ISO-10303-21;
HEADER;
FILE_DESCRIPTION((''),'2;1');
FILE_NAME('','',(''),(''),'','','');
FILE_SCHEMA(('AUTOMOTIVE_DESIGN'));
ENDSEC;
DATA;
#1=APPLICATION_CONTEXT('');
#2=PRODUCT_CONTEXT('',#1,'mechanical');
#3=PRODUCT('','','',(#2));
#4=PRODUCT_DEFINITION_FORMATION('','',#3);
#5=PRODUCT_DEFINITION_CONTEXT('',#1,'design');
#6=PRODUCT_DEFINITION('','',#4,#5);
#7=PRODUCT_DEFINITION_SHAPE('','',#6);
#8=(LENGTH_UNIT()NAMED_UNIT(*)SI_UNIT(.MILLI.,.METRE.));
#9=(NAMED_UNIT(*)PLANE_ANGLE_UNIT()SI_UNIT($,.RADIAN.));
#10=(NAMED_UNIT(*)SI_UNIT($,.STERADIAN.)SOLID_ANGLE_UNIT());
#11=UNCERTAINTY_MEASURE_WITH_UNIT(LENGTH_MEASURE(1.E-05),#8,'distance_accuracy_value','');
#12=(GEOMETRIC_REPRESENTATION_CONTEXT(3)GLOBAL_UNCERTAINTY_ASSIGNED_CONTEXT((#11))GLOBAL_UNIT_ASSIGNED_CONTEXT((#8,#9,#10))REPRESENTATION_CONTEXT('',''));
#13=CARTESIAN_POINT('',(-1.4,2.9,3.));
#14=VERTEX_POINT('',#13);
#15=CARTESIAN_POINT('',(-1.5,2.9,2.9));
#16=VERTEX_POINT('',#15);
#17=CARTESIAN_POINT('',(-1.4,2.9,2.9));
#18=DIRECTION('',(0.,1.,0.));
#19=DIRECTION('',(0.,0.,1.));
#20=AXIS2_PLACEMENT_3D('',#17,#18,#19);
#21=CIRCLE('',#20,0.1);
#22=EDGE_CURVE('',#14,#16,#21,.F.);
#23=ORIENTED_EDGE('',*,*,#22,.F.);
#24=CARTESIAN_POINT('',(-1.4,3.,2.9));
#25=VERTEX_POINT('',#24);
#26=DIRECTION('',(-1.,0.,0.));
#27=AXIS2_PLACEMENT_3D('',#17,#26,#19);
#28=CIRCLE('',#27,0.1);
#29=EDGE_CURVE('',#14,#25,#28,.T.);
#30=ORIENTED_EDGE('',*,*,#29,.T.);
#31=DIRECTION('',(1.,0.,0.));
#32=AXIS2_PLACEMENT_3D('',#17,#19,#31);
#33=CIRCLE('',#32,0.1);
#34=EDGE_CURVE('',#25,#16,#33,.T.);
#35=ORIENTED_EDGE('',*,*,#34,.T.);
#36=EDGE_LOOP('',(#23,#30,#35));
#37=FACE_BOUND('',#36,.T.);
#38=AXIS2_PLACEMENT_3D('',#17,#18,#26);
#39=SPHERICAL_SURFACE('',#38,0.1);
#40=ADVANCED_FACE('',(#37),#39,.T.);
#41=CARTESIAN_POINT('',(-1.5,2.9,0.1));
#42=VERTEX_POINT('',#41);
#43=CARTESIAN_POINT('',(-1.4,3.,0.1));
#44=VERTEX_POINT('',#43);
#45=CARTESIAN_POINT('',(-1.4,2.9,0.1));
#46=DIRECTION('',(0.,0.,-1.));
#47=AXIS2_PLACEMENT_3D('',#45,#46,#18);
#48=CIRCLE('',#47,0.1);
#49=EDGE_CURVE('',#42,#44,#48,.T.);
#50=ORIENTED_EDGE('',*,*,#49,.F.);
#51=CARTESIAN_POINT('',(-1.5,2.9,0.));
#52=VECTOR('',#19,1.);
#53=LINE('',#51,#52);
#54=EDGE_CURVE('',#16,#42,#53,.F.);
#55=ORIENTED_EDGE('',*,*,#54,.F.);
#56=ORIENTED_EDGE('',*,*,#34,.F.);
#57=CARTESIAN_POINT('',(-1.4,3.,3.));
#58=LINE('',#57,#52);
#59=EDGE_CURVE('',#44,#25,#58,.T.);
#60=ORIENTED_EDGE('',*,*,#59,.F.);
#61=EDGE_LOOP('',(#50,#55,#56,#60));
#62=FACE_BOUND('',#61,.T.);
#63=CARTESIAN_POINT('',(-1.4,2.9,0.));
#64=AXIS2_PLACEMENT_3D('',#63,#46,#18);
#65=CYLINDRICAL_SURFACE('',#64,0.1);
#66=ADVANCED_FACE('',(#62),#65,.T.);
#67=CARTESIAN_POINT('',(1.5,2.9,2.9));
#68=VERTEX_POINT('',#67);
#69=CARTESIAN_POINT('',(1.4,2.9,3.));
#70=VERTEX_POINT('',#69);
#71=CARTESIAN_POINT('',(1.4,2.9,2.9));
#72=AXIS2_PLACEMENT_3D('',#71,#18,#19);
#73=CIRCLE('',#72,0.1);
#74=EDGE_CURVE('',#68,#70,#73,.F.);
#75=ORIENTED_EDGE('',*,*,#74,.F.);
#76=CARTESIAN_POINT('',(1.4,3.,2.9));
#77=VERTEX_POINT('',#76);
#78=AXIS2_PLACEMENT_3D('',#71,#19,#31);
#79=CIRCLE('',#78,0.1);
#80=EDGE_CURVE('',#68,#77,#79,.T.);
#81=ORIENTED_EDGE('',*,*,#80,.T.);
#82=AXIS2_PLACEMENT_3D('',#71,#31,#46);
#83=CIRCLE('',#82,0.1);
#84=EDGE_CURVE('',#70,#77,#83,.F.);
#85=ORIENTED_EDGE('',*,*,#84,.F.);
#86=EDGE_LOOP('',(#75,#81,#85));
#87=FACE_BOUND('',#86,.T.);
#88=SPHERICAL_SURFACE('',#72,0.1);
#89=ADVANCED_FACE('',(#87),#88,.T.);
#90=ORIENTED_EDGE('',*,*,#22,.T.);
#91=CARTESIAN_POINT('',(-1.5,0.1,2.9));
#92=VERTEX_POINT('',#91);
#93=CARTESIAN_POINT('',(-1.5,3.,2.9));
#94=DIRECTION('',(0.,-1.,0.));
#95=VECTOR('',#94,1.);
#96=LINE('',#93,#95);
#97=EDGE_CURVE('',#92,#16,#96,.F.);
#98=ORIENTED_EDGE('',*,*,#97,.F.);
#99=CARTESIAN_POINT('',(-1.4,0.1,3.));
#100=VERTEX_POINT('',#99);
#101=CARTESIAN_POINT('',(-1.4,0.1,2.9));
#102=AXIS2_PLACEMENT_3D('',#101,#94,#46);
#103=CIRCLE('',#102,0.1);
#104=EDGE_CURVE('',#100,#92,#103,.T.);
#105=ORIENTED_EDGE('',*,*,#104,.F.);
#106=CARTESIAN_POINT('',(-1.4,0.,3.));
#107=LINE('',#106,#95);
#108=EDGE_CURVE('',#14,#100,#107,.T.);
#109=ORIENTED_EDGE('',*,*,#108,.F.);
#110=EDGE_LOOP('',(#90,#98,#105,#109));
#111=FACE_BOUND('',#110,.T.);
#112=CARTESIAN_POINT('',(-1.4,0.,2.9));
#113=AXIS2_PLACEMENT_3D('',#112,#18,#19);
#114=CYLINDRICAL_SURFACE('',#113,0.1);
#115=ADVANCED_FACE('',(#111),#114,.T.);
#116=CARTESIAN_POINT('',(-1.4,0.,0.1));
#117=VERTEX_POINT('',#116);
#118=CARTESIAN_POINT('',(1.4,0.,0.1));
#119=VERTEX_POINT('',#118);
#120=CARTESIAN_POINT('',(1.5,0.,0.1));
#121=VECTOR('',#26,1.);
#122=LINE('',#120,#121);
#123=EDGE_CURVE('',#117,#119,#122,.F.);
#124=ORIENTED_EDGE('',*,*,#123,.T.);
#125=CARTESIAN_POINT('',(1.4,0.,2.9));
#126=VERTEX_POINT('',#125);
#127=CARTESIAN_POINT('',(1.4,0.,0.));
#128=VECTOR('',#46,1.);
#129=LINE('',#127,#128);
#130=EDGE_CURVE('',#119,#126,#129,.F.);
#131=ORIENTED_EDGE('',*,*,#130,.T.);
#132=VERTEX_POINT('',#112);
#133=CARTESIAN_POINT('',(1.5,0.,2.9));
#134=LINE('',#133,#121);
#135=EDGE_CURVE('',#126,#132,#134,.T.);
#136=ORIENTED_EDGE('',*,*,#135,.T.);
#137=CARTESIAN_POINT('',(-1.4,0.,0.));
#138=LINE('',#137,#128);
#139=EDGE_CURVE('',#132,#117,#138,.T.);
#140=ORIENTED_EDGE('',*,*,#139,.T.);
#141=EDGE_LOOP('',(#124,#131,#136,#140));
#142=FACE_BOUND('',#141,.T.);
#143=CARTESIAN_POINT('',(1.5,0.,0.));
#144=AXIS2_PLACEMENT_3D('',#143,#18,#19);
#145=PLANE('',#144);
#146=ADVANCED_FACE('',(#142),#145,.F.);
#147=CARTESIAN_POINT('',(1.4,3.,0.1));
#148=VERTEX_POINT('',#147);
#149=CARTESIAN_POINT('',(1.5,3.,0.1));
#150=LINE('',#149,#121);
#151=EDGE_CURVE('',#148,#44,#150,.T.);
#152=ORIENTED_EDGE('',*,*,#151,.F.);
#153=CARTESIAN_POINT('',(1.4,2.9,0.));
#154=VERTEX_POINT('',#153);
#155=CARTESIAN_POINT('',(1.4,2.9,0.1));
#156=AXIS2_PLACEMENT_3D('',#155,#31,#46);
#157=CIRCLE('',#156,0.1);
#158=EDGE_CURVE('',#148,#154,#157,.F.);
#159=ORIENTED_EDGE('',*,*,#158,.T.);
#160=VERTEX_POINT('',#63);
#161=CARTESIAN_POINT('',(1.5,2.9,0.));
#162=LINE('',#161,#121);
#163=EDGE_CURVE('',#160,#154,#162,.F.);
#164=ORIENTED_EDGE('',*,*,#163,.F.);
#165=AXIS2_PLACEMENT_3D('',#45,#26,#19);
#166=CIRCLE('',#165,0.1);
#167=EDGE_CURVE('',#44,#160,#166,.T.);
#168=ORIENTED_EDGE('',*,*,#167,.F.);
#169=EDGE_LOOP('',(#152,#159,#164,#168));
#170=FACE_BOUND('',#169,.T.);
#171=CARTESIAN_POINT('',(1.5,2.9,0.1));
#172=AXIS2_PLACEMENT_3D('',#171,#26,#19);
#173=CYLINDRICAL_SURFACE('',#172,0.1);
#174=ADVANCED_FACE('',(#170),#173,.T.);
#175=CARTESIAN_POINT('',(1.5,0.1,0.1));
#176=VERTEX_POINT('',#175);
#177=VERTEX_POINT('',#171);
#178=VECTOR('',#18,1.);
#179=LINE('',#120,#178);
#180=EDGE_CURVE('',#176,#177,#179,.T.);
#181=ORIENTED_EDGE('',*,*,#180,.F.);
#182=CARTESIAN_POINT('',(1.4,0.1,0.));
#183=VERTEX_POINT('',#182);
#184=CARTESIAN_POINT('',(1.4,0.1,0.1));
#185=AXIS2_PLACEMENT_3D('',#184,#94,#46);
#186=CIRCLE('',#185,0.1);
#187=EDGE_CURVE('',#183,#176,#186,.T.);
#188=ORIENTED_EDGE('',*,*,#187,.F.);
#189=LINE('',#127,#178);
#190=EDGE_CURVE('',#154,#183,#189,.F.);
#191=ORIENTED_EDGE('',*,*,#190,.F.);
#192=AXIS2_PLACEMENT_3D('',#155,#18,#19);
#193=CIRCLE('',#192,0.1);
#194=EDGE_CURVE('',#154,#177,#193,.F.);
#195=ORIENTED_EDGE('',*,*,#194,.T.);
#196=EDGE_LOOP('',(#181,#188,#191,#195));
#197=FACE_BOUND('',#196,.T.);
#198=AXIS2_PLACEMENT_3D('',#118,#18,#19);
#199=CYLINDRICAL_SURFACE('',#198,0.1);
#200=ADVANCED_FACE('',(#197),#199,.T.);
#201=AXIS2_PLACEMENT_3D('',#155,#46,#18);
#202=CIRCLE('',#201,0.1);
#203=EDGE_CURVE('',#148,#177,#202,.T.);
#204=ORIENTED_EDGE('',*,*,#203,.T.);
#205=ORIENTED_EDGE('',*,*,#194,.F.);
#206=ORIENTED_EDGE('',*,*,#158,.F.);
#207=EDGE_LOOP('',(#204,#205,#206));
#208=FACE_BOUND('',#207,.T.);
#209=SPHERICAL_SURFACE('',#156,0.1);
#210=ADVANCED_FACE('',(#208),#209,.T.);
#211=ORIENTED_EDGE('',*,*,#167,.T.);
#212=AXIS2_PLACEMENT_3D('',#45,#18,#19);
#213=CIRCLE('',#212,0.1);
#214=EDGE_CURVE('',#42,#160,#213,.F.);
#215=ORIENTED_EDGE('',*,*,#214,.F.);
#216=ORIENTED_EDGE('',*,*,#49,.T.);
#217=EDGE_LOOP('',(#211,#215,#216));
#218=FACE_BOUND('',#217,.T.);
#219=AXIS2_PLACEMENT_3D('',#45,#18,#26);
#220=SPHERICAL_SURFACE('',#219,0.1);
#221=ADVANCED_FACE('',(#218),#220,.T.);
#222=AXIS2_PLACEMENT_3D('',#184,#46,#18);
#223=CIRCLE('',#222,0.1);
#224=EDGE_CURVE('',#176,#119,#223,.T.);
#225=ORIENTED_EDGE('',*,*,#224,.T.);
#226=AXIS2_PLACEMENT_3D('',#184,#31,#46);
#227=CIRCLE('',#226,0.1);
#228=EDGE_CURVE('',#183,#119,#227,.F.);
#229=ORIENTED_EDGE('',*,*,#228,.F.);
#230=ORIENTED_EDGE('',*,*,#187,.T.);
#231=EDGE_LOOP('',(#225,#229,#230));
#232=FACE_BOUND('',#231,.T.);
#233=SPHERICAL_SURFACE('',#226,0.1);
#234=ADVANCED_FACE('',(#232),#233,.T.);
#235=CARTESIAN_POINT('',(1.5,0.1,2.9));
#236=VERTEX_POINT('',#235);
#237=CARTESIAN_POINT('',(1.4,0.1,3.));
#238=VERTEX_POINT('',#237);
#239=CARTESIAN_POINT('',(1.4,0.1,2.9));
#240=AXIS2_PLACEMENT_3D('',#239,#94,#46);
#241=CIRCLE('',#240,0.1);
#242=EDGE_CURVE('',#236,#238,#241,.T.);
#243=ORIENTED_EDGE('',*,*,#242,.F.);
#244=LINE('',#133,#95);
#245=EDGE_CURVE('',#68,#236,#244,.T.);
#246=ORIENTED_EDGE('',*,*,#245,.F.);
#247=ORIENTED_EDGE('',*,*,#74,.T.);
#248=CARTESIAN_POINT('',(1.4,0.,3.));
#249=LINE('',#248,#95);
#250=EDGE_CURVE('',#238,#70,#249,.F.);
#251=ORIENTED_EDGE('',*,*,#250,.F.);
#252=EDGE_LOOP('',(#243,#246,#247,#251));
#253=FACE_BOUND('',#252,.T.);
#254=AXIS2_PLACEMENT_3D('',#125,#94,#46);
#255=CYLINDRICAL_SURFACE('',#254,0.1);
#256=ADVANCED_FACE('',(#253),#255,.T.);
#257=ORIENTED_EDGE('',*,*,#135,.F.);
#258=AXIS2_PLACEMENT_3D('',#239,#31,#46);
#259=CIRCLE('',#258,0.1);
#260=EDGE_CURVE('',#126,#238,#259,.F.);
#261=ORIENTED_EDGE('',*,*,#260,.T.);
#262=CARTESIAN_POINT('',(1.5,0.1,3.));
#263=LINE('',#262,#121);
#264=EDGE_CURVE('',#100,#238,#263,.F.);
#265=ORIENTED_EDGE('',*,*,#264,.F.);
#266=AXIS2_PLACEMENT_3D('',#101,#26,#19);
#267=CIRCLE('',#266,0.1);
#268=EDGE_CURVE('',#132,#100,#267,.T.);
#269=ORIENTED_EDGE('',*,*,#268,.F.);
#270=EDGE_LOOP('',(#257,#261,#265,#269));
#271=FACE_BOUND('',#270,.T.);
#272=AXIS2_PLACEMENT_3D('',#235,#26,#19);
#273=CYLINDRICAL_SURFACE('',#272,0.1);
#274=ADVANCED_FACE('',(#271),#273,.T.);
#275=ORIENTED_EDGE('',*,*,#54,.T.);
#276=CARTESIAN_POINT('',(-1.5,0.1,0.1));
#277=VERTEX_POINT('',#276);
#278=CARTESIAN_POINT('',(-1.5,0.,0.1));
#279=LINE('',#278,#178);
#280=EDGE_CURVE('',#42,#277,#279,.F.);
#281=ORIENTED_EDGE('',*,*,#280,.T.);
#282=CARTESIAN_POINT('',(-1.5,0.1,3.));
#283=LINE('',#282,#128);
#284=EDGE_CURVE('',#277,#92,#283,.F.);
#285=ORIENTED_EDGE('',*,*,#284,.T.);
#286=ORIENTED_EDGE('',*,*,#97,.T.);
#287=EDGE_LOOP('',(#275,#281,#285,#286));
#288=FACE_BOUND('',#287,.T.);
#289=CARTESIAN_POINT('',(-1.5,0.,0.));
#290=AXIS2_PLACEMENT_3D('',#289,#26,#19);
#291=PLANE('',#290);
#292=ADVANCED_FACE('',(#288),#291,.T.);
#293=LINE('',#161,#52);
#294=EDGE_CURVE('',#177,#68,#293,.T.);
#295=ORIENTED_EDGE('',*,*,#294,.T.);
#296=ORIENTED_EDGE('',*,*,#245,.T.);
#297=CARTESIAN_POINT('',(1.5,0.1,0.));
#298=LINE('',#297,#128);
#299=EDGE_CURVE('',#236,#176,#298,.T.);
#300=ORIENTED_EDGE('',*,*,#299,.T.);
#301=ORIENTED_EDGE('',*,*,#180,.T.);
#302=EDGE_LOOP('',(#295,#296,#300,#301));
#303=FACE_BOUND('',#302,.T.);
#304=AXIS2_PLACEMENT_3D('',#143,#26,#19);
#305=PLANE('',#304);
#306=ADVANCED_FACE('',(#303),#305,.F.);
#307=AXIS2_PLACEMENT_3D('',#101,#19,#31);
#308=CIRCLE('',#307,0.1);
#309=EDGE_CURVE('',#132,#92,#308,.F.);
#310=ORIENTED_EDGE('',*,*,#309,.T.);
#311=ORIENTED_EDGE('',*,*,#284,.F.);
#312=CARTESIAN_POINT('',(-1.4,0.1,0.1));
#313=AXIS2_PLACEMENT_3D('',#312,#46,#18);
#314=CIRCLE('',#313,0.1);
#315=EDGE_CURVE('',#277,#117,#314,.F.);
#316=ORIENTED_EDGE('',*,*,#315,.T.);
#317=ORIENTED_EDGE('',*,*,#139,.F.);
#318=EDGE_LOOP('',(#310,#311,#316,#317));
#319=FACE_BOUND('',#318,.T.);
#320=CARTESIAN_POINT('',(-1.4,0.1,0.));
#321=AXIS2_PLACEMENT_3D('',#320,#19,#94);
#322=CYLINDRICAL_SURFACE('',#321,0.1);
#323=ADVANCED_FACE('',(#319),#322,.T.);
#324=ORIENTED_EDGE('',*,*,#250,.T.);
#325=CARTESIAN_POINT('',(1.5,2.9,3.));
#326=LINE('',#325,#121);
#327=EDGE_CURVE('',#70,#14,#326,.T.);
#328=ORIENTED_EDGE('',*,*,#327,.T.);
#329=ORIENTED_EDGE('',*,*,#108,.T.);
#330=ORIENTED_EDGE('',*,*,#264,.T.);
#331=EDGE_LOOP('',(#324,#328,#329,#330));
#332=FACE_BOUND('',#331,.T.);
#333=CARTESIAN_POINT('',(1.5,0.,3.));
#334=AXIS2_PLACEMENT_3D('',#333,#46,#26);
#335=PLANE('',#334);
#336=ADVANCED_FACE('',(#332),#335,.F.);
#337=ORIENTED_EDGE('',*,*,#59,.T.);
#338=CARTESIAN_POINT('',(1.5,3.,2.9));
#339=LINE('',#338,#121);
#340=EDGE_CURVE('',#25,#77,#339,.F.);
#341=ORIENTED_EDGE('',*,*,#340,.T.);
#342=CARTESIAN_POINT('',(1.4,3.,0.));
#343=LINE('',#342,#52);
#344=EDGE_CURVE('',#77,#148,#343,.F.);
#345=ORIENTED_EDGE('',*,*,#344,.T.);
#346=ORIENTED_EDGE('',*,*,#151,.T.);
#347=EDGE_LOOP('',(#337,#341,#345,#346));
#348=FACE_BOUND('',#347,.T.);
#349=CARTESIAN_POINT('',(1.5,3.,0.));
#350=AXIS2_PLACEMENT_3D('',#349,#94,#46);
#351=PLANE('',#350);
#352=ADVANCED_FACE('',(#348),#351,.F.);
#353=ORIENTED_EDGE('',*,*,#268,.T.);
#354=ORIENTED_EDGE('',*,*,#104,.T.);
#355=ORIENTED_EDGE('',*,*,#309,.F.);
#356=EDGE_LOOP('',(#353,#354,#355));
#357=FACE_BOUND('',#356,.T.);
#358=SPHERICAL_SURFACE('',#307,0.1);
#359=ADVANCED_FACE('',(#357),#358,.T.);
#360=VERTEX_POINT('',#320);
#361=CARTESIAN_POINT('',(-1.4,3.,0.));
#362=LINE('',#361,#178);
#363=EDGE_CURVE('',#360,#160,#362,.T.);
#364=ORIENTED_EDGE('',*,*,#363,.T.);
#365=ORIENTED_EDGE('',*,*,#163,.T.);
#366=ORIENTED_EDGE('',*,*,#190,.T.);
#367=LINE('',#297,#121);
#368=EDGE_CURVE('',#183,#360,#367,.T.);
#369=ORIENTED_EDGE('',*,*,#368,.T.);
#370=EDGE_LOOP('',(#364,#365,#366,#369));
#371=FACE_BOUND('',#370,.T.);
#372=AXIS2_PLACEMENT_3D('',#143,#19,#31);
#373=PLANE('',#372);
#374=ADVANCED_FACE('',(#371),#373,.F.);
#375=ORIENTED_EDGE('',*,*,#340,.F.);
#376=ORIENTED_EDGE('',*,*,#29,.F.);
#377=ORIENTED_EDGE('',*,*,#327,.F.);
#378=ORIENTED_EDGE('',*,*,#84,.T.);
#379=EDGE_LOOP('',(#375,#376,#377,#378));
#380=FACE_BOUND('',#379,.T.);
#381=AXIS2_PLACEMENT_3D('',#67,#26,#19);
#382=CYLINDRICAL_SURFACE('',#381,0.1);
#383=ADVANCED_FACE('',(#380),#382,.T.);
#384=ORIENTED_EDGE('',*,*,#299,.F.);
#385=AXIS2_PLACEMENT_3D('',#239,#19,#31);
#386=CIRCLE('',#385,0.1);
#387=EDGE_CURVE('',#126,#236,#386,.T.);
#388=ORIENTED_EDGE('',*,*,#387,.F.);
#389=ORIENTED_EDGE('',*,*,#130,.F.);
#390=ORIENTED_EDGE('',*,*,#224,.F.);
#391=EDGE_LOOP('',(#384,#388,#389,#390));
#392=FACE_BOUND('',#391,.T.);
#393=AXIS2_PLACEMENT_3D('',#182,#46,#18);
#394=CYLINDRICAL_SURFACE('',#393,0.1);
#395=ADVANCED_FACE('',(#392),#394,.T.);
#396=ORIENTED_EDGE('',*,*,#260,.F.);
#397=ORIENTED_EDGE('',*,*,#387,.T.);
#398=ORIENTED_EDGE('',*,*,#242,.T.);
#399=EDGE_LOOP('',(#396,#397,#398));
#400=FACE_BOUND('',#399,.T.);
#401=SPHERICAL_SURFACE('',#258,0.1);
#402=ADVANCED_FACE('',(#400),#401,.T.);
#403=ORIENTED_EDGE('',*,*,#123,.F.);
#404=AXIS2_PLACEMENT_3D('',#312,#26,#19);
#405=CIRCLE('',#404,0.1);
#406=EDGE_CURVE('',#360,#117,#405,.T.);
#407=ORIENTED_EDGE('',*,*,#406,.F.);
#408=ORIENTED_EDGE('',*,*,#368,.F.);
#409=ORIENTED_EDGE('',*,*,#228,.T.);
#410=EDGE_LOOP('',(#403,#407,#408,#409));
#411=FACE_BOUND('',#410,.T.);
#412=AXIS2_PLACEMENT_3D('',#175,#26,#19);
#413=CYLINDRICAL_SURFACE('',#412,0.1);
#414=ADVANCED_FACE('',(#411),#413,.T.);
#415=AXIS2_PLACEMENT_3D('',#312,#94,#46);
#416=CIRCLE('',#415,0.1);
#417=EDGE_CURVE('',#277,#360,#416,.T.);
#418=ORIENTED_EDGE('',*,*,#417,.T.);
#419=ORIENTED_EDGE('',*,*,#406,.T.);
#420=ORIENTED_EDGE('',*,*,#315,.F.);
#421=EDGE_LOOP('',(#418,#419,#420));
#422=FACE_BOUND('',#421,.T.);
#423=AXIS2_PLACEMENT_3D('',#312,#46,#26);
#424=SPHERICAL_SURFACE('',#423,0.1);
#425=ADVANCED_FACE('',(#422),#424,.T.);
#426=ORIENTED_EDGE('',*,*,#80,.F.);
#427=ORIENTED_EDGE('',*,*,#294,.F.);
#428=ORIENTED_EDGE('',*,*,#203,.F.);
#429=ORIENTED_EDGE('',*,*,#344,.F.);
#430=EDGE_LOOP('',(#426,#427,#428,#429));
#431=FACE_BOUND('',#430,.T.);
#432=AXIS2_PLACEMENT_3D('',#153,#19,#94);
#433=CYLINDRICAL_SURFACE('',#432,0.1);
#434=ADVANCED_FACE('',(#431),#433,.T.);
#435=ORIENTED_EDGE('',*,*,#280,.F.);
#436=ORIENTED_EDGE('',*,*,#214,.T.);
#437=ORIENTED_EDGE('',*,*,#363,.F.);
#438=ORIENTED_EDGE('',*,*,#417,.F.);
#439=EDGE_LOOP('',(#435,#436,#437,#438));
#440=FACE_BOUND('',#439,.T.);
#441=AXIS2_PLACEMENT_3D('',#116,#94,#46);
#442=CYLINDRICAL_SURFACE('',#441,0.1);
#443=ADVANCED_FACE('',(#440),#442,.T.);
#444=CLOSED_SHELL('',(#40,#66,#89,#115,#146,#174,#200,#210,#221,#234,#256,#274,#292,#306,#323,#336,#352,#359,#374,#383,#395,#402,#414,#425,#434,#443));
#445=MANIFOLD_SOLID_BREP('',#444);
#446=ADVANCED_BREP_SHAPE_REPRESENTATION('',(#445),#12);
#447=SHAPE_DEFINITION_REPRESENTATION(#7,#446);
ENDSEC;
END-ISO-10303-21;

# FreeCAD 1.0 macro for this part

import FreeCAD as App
import Part
import Sketcher

V = App.Vector
Q = App.Units.Quantity


def add_polygon(sketch, points):
    """Adds a closed chain of lines whose ends are joined by coincident constraints."""
    first, n = sketch.GeometryCount, len(points)
    for a, b in zip(points, points[1:] + points[:1]):
        sketch.addGeometry(Part.LineSegment(App.Vector(*a, 0), App.Vector(*b, 0)), False)
    for i in range(n):
        sketch.addConstraint(Sketcher.Constraint("Coincident", first + i, 2, first + (i + 1) % n, 1))

doc = App.newDocument("Part")
params = doc.addObject("Spreadsheet::Sheet", "Params")
for row, (alias, value) in enumerate([
    ("sketch1_width", "3 mm"),
    ("pad1_length", "3 mm"),
    ("fillet_radius", "0.1 mm"),
], start=1):
    params.set(f"A{row}", alias)
    params.set(f"B{row}", "=" + value)
    params.setAlias(f"B{row}", alias)

body = doc.addObject("PartDesign::Body", "Body")

sketch1 = body.newObject("Sketcher::SketchObject", "Sketch")
sketch1.AttachmentSupport = (doc.getObject("YZ_Plane"), [""])
sketch1.MapMode = "FlatFace"
add_polygon(sketch1, [(0, 3), (0, 0), (3, 0), (3, 3)])
sketch1.addConstraint(Sketcher.Constraint("Vertical", 0))
sketch1.addConstraint(Sketcher.Constraint("Horizontal", 1))
sketch1.addConstraint(Sketcher.Constraint("Vertical", 2))
sketch1.addConstraint(Sketcher.Constraint("Horizontal", 3))
sketch1.addConstraint(Sketcher.Constraint("Coincident", 0, 2, -1, 1))
sketch1.addConstraint(Sketcher.Constraint("Equal", 3, 0))
sketch1.addConstraint(Sketcher.Constraint("DistanceX", 1, 1, 1, 2, Q("3 mm")))
sketch1.setExpression("Constraints[10]", "Params.sketch1_width")
pad1 = body.newObject("PartDesign::Pad", "Pad")
pad1.Profile = sketch1
pad1.setExpression("Length", "Params.pad1_length")
pad1.Midplane = True
doc.recompute()

fillet = body.newObject("PartDesign::Fillet", "Fillet")
fillet.Base = (pad1, ["Edge1"])
fillet.UseAllEdges = True
fillet.setExpression("Radius", "Params.fillet_radius")

doc.recompute()
